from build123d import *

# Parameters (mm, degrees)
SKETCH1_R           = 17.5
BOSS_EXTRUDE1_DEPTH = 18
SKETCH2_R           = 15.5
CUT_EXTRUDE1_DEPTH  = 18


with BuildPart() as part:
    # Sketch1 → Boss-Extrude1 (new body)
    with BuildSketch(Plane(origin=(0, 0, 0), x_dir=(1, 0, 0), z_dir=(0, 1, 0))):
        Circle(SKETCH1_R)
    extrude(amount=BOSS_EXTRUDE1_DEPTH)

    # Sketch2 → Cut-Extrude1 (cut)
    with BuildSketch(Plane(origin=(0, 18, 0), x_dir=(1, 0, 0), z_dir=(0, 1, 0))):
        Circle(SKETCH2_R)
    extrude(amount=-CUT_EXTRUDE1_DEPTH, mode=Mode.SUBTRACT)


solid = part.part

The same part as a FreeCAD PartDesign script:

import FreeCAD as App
import Part
import Sketcher
from FreeCAD import Vector
Q = App.Units.Quantity

doc = App.newDocument("Part")
params = doc.addObject("Spreadsheet::Sheet", "Params")
for row, (alias, value) in enumerate([
    ("sketch1_diameter", "35 mm"),
    ("pad1_length", "18 mm"),
    ("sketch2_diameter", "31 mm"),
    ("pocket1_length", "18 mm"),
], start=1):
    params.set(f"A{row}", alias)
    params.set(f"B{row}", "=" + value)
    params.setAlias(f"B{row}", alias)

body = doc.addObject("PartDesign::Body", "Body")

# Sketch on XZ plane
sketch1 = doc.addObject("Sketcher::SketchObject", "Sketch")
body.addObject(sketch1)
sketch1.AttachmentSupport = (doc.XZ_Plane, [""])
sketch1.MapMode = "FlatFace"
sketch1.addGeometry(Part.Circle(Vector(0, 0, 0), Vector(0, 0, 1), 18), False)
sketch1.addConstraint([
    Sketcher.Constraint("Coincident", 0, 3, -1, 1),
    Sketcher.Constraint("Diameter", 0, Q("35 mm")),
])
sketch1.setExpression("Constraints[1]", "Params.sketch1_diameter")
pad1 = doc.addObject("PartDesign::Pad", "Pad")
body.addObject(pad1)
pad1.Profile = sketch1
pad1.setExpression("Length", "Params.pad1_length")
pad1.Reversed = True

# Sketch on XZ plane
sketch2 = doc.addObject("Sketcher::SketchObject", "Sketch001")
body.addObject(sketch2)
sketch2.AttachmentSupport = (doc.XZ_Plane, [""])
sketch2.MapMode = "FlatFace"
sketch2.AttachmentOffset = App.Placement(Vector(0, 0, -18), App.Rotation())
sketch2.addGeometry(Part.Circle(Vector(0, 0, 0), Vector(0, 0, 1), 16), False)
sketch2.addConstraint([
    Sketcher.Constraint("Coincident", 0, 3, -1, 1),
    Sketcher.Constraint("Diameter", 0, Q("31 mm")),
])
sketch2.setExpression("Constraints[1]", "Params.sketch2_diameter")
pocket1 = doc.addObject("PartDesign::Pocket", "Pocket")
body.addObject(pocket1)
pocket1.Profile = sketch2
pocket1.setExpression("Length", "Params.pocket1_length")
pocket1.Reversed = True

doc.recompute()
